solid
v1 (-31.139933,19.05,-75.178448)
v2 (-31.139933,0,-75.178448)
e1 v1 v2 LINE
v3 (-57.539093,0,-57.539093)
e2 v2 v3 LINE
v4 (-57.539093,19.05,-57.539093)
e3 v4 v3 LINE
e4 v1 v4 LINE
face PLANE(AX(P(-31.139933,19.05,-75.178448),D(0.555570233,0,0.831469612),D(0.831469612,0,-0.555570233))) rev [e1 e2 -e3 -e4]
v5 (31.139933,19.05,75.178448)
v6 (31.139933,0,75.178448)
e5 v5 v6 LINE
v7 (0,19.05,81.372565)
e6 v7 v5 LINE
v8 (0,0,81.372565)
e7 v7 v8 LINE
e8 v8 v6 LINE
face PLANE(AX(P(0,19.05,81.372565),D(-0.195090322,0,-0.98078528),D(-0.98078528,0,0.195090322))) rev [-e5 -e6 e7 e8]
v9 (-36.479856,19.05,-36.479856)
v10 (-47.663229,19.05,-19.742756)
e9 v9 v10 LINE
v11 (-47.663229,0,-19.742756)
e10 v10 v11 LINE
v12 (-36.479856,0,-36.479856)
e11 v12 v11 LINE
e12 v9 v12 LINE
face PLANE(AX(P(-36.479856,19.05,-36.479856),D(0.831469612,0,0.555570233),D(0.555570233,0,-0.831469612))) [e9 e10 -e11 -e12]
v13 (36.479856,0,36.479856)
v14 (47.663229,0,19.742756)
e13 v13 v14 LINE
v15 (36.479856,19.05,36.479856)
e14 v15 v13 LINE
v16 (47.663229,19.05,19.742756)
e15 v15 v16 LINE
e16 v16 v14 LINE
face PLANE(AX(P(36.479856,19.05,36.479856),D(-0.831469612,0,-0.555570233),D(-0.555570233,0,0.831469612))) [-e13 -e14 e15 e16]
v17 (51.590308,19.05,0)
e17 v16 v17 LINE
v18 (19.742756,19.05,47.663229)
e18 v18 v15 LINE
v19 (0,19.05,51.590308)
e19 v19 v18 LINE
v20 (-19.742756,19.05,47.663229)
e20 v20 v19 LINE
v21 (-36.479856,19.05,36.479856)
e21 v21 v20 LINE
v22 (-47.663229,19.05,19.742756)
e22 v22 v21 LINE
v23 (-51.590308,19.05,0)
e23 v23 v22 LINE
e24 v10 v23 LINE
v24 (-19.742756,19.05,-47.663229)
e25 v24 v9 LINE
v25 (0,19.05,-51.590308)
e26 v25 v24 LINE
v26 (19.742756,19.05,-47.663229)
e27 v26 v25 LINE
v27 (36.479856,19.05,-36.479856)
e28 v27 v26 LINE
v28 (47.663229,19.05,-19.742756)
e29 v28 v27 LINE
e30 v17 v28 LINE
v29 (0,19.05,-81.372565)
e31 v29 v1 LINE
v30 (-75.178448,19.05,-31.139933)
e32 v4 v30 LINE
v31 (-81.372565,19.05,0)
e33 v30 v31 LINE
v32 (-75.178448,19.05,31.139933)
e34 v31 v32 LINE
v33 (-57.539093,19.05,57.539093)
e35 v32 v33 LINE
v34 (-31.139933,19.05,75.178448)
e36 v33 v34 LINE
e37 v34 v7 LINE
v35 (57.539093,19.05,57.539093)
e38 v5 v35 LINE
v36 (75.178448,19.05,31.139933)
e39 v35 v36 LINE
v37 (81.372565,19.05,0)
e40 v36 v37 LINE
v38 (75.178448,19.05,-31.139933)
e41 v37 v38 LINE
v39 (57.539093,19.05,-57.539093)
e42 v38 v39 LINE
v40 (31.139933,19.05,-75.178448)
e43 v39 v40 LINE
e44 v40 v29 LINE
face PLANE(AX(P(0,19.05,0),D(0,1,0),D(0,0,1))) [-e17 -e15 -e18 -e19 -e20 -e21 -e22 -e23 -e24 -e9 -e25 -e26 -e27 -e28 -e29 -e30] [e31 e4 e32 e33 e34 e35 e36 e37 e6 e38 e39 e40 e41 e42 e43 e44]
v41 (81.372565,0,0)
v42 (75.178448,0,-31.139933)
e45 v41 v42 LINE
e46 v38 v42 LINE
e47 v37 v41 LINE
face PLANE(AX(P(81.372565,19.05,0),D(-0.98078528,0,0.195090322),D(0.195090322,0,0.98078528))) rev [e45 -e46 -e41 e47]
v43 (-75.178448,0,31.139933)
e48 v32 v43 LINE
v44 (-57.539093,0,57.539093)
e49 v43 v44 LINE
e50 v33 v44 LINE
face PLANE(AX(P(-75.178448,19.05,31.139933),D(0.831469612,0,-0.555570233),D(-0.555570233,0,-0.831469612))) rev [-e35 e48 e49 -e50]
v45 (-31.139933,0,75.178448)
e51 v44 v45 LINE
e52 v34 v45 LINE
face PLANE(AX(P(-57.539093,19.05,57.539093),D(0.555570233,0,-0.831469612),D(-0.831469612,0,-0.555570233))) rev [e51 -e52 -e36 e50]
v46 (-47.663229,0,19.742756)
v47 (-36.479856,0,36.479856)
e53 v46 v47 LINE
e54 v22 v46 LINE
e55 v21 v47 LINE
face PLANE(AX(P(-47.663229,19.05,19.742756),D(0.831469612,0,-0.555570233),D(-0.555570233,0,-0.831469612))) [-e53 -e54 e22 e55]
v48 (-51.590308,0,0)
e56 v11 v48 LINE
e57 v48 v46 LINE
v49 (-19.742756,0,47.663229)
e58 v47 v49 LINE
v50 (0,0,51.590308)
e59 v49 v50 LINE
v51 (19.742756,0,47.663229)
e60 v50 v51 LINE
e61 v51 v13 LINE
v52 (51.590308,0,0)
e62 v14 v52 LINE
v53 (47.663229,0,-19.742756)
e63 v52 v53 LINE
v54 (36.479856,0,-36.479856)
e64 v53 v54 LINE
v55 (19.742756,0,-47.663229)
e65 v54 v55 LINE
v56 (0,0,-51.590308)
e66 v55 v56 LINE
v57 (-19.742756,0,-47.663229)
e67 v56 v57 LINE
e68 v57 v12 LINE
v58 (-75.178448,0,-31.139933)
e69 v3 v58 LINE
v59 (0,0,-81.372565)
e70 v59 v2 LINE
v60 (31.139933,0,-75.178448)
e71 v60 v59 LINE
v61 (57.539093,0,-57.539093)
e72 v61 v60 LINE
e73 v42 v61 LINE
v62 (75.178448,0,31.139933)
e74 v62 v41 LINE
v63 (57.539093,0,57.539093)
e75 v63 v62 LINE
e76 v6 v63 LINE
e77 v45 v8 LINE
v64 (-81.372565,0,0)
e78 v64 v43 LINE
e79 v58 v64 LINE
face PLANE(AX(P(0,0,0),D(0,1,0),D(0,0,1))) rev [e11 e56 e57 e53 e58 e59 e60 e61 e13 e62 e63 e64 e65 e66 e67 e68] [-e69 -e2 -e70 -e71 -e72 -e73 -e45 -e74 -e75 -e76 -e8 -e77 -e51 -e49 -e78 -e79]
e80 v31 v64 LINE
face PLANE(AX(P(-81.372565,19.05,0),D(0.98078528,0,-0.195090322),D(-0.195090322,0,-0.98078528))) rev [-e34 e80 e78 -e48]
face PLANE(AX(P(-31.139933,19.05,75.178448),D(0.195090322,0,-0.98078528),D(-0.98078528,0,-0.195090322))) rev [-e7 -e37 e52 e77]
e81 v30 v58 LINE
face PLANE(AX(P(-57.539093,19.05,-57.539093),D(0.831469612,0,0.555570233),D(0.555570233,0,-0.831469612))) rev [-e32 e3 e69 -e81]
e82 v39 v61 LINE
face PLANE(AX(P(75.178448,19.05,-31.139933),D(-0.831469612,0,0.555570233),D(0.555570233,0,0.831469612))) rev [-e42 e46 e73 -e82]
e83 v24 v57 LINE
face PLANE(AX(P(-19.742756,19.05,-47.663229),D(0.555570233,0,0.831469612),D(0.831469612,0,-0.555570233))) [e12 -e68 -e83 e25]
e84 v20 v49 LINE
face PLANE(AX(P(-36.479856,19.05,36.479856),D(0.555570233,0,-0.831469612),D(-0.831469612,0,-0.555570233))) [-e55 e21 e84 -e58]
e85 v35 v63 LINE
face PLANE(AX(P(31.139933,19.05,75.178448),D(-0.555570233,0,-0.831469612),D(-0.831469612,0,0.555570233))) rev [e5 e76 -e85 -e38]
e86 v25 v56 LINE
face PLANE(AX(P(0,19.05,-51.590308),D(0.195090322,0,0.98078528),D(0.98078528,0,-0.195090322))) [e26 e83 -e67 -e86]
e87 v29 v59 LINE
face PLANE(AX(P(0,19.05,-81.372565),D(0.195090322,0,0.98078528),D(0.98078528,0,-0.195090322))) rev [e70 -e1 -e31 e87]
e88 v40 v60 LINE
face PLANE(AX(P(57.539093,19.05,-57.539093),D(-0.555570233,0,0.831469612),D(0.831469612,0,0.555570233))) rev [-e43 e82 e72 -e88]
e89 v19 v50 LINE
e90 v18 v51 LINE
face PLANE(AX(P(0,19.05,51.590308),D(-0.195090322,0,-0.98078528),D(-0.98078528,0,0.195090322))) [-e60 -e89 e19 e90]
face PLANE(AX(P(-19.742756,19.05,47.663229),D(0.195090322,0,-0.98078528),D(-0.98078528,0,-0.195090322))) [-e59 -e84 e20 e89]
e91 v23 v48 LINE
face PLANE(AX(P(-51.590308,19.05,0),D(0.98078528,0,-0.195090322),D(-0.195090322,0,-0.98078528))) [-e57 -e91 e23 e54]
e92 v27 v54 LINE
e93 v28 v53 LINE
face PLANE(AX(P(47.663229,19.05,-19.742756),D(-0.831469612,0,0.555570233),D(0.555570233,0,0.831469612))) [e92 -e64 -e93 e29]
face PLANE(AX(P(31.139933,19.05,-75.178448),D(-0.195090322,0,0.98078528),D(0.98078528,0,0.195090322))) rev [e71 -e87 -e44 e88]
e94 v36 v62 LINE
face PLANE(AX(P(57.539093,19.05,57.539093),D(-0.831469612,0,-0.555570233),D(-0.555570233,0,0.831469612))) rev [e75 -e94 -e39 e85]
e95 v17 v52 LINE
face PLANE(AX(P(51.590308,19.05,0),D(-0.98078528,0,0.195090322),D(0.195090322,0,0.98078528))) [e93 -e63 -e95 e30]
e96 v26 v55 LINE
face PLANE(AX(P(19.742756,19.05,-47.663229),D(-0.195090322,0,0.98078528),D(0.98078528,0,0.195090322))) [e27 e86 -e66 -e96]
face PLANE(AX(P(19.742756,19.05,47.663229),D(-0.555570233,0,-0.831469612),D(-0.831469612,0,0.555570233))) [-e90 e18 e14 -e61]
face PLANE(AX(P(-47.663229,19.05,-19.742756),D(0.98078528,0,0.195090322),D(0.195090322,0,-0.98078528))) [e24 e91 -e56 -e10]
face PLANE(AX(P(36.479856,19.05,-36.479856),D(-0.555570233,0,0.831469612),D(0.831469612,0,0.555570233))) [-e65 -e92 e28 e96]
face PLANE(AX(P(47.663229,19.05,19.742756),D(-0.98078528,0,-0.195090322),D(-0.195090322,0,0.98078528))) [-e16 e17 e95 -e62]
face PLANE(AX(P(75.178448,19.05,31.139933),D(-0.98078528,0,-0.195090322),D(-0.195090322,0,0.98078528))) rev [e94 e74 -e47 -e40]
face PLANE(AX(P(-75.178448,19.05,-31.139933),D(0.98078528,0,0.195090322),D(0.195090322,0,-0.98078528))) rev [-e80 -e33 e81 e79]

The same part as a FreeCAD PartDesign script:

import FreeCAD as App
import Part
import Sketcher
Q = App.Units.Quantity

doc = App.newDocument("Part")
body = doc.addObject("PartDesign::Body", "Body")

sketch1 = body.newObject("Sketcher::SketchObject", "Sketch")
sketch1.AttachmentSupport = (doc.getObject("XZ_Plane"), [""])
sketch1.MapMode = "FlatFace"
sketch1.addGeometry([
    Part.LineSegment(App.Vector(-81, 0, 0), App.Vector(-75, 31, 0)),
    Part.LineSegment(App.Vector(-75, 31, 0), App.Vector(-58, 58, 0)),
    Part.LineSegment(App.Vector(-58, 58, 0), App.Vector(-31, 75, 0)),
    Part.LineSegment(App.Vector(-31, 75, 0), App.Vector(0, 81, 0)),
    Part.LineSegment(App.Vector(0, 81, 0), App.Vector(31, 75, 0)),
    Part.LineSegment(App.Vector(31, 75, 0), App.Vector(58, 58, 0)),
    Part.LineSegment(App.Vector(58, 58, 0), App.Vector(75, 31, 0)),
    Part.LineSegment(App.Vector(75, 31, 0), App.Vector(81, 0, 0)),
    Part.LineSegment(App.Vector(81, 0, 0), App.Vector(75, -31, 0)),
    Part.LineSegment(App.Vector(75, -31, 0), App.Vector(58, -58, 0)),
    Part.LineSegment(App.Vector(58, -58, 0), App.Vector(31, -75, 0)),
    Part.LineSegment(App.Vector(31, -75, 0), App.Vector(0, -81, 0)),
    Part.LineSegment(App.Vector(0, -81, 0), App.Vector(-31, -75, 0)),
    Part.LineSegment(App.Vector(-31, -75, 0), App.Vector(-58, -58, 0)),
    Part.LineSegment(App.Vector(-58, -58, 0), App.Vector(-75, -31, 0)),
    Part.LineSegment(App.Vector(-75, -31, 0), App.Vector(-81, 0, 0)),
    Part.LineSegment(App.Vector(-48, 20, 0), App.Vector(-52, 0, 0)),
    Part.LineSegment(App.Vector(-52, 0, 0), App.Vector(-48, -20, 0)),
    Part.LineSegment(App.Vector(-48, -20, 0), App.Vector(-36, -36, 0)),
    Part.LineSegment(App.Vector(-36, -36, 0), App.Vector(-20, -48, 0)),
    Part.LineSegment(App.Vector(-20, -48, 0), App.Vector(0, -52, 0)),
    Part.LineSegment(App.Vector(0, -52, 0), App.Vector(20, -48, 0)),
    Part.LineSegment(App.Vector(20, -48, 0), App.Vector(36, -36, 0)),
    Part.LineSegment(App.Vector(36, -36, 0), App.Vector(48, -20, 0)),
    Part.LineSegment(App.Vector(48, -20, 0), App.Vector(52, 0, 0)),
    Part.LineSegment(App.Vector(52, 0, 0), App.Vector(48, 20, 0)),
    Part.LineSegment(App.Vector(48, 20, 0), App.Vector(36, 36, 0)),
    Part.LineSegment(App.Vector(36, 36, 0), App.Vector(20, 48, 0)),
    Part.LineSegment(App.Vector(20, 48, 0), App.Vector(0, 52, 0)),
    Part.LineSegment(App.Vector(0, 52, 0), App.Vector(-20, 48, 0)),
    Part.LineSegment(App.Vector(-20, 48, 0), App.Vector(-36, 36, 0)),
    Part.LineSegment(App.Vector(-36, 36, 0), App.Vector(-48, 20, 0)),
], False)
sketch1.addConstraint([
    Sketcher.Constraint("Coincident", 0, 2, 1, 1),
    Sketcher.Constraint("Coincident", 1, 2, 2, 1),
    Sketcher.Constraint("Coincident", 2, 2, 3, 1),
    Sketcher.Constraint("Coincident", 3, 2, 4, 1),
    Sketcher.Constraint("Coincident", 4, 2, 5, 1),
    Sketcher.Constraint("Coincident", 5, 2, 6, 1),
    Sketcher.Constraint("Coincident", 6, 2, 7, 1),
    Sketcher.Constraint("Coincident", 7, 2, 8, 1),
    Sketcher.Constraint("Coincident", 8, 2, 9, 1),
    Sketcher.Constraint("Coincident", 9, 2, 10, 1),
    Sketcher.Constraint("Coincident", 10, 2, 11, 1),
    Sketcher.Constraint("Coincident", 11, 2, 12, 1),
    Sketcher.Constraint("Coincident", 12, 2, 13, 1),
    Sketcher.Constraint("Coincident", 13, 2, 14, 1),
    Sketcher.Constraint("Coincident", 14, 2, 15, 1),
    Sketcher.Constraint("Coincident", 15, 2, 0, 1),
    Sketcher.Constraint("Coincident", 16, 2, 17, 1),
    Sketcher.Constraint("Coincident", 17, 2, 18, 1),
    Sketcher.Constraint("Coincident", 18, 2, 19, 1),
    Sketcher.Constraint("Coincident", 19, 2, 20, 1),
    Sketcher.Constraint("Coincident", 20, 2, 21, 1),
    Sketcher.Constraint("Coincident", 21, 2, 22, 1),
    Sketcher.Constraint("Coincident", 22, 2, 23, 1),
    Sketcher.Constraint("Coincident", 23, 2, 24, 1),
    Sketcher.Constraint("Coincident", 24, 2, 25, 1),
    Sketcher.Constraint("Coincident", 25, 2, 26, 1),
    Sketcher.Constraint("Coincident", 26, 2, 27, 1),
    Sketcher.Constraint("Coincident", 27, 2, 28, 1),
    Sketcher.Constraint("Coincident", 28, 2, 29, 1),
    Sketcher.Constraint("Coincident", 29, 2, 30, 1),
    Sketcher.Constraint("Coincident", 30, 2, 31, 1),
    Sketcher.Constraint("Coincident", 31, 2, 16, 1),
    Sketcher.Constraint("Symmetric", 0, 2, 8, 2, -1, 1),
    Sketcher.Constraint("Symmetric", 1, 2, 9, 2, -1, 1),
    Sketcher.Constraint("Symmetric", 2, 2, 10, 2, -1, 1),
    Sketcher.Constraint("Symmetric", 3, 2, 11, 2, -1, 1),
    Sketcher.Constraint("Symmetric", 4, 2, 12, 2, -1, 1),
    Sketcher.Constraint("Symmetric", 5, 2, 13, 2, -1, 1),
    Sketcher.Constraint("Symmetric", 6, 2, 14, 2, -1, 1),
    Sketcher.Constraint("Symmetric", 7, 2, 15, 2, -1, 1),
    Sketcher.Constraint("Symmetric", 16, 2, 24, 2, -1, 1),
    Sketcher.Constraint("Symmetric", 17, 2, 25, 2, -1, 1),
    Sketcher.Constraint("Symmetric", 18, 2, 26, 2, -1, 1),
    Sketcher.Constraint("Symmetric", 19, 2, 27, 2, -1, 1),
    Sketcher.Constraint("Symmetric", 20, 2, 28, 2, -1, 1),
    Sketcher.Constraint("Symmetric", 21, 2, 29, 2, -1, 1),
    Sketcher.Constraint("Symmetric", 22, 2, 30, 2, -1, 1),
    Sketcher.Constraint("Symmetric", 23, 2, 31, 2, -1, 1),
    Sketcher.Constraint("Symmetric", 2, 2, 4, 2, -2),
    Sketcher.Constraint("Symmetric", 1, 2, 5, 2, -2),
    Sketcher.Constraint("Symmetric", 0, 2, 6, 2, -2),
    Sketcher.Constraint("Symmetric", 19, 2, 21, 2, -2),
    Sketcher.Constraint("Symmetric", 18, 2, 22, 2, -2),
    Sketcher.Constraint("Symmetric", 17, 2, 23, 2, -2),
    Sketcher.Constraint("PointOnObject", 3, 2, -2),
    Sketcher.Constraint("PointOnObject", 7, 2, -1),
    Sketcher.Constraint("PointOnObject", 16, 2, -1),
    Sketcher.Constraint("PointOnObject", 20, 2, -2),
    Sketcher.Constraint("Perpendicular", 0, 4),
    Sketcher.Constraint("Perpendicular", 1, 5),
    Sketcher.Constraint("Perpendicular", 12, 16),
    Sketcher.Constraint("Parallel", 14, 18),
    Sketcher.Constraint("Parallel", 13, 19),
    Sketcher.Constraint("Perpendicular", 16, 20),
    Sketcher.Constraint("Equal", 0, 1),
    Sketcher.Constraint("Equal", 1, 2),
    Sketcher.Constraint("Equal", 2, 3),
    Sketcher.Constraint("Equal", 17, 18),
    Sketcher.Constraint("Equal", 18, 19),
    Sketcher.Constraint("Equal", 19, 20),
    Sketcher.Constraint("Distance", 0, Q("1.25 in")),
    Sketcher.Constraint("Angle", 0, Q("78.75 deg")),
    Sketcher.Constraint("Angle", 1, Q("56.25 deg")),
    Sketcher.Constraint("DistanceY", 18, 2, 17, 2, Q("16.7371 mm")),
])
pad1 = body.newObject("PartDesign::Pad", "Pad")
pad1.Profile = sketch1
pad1.Length = Q("0.75 in")
pad1.Reversed = True

doc.recompute()
